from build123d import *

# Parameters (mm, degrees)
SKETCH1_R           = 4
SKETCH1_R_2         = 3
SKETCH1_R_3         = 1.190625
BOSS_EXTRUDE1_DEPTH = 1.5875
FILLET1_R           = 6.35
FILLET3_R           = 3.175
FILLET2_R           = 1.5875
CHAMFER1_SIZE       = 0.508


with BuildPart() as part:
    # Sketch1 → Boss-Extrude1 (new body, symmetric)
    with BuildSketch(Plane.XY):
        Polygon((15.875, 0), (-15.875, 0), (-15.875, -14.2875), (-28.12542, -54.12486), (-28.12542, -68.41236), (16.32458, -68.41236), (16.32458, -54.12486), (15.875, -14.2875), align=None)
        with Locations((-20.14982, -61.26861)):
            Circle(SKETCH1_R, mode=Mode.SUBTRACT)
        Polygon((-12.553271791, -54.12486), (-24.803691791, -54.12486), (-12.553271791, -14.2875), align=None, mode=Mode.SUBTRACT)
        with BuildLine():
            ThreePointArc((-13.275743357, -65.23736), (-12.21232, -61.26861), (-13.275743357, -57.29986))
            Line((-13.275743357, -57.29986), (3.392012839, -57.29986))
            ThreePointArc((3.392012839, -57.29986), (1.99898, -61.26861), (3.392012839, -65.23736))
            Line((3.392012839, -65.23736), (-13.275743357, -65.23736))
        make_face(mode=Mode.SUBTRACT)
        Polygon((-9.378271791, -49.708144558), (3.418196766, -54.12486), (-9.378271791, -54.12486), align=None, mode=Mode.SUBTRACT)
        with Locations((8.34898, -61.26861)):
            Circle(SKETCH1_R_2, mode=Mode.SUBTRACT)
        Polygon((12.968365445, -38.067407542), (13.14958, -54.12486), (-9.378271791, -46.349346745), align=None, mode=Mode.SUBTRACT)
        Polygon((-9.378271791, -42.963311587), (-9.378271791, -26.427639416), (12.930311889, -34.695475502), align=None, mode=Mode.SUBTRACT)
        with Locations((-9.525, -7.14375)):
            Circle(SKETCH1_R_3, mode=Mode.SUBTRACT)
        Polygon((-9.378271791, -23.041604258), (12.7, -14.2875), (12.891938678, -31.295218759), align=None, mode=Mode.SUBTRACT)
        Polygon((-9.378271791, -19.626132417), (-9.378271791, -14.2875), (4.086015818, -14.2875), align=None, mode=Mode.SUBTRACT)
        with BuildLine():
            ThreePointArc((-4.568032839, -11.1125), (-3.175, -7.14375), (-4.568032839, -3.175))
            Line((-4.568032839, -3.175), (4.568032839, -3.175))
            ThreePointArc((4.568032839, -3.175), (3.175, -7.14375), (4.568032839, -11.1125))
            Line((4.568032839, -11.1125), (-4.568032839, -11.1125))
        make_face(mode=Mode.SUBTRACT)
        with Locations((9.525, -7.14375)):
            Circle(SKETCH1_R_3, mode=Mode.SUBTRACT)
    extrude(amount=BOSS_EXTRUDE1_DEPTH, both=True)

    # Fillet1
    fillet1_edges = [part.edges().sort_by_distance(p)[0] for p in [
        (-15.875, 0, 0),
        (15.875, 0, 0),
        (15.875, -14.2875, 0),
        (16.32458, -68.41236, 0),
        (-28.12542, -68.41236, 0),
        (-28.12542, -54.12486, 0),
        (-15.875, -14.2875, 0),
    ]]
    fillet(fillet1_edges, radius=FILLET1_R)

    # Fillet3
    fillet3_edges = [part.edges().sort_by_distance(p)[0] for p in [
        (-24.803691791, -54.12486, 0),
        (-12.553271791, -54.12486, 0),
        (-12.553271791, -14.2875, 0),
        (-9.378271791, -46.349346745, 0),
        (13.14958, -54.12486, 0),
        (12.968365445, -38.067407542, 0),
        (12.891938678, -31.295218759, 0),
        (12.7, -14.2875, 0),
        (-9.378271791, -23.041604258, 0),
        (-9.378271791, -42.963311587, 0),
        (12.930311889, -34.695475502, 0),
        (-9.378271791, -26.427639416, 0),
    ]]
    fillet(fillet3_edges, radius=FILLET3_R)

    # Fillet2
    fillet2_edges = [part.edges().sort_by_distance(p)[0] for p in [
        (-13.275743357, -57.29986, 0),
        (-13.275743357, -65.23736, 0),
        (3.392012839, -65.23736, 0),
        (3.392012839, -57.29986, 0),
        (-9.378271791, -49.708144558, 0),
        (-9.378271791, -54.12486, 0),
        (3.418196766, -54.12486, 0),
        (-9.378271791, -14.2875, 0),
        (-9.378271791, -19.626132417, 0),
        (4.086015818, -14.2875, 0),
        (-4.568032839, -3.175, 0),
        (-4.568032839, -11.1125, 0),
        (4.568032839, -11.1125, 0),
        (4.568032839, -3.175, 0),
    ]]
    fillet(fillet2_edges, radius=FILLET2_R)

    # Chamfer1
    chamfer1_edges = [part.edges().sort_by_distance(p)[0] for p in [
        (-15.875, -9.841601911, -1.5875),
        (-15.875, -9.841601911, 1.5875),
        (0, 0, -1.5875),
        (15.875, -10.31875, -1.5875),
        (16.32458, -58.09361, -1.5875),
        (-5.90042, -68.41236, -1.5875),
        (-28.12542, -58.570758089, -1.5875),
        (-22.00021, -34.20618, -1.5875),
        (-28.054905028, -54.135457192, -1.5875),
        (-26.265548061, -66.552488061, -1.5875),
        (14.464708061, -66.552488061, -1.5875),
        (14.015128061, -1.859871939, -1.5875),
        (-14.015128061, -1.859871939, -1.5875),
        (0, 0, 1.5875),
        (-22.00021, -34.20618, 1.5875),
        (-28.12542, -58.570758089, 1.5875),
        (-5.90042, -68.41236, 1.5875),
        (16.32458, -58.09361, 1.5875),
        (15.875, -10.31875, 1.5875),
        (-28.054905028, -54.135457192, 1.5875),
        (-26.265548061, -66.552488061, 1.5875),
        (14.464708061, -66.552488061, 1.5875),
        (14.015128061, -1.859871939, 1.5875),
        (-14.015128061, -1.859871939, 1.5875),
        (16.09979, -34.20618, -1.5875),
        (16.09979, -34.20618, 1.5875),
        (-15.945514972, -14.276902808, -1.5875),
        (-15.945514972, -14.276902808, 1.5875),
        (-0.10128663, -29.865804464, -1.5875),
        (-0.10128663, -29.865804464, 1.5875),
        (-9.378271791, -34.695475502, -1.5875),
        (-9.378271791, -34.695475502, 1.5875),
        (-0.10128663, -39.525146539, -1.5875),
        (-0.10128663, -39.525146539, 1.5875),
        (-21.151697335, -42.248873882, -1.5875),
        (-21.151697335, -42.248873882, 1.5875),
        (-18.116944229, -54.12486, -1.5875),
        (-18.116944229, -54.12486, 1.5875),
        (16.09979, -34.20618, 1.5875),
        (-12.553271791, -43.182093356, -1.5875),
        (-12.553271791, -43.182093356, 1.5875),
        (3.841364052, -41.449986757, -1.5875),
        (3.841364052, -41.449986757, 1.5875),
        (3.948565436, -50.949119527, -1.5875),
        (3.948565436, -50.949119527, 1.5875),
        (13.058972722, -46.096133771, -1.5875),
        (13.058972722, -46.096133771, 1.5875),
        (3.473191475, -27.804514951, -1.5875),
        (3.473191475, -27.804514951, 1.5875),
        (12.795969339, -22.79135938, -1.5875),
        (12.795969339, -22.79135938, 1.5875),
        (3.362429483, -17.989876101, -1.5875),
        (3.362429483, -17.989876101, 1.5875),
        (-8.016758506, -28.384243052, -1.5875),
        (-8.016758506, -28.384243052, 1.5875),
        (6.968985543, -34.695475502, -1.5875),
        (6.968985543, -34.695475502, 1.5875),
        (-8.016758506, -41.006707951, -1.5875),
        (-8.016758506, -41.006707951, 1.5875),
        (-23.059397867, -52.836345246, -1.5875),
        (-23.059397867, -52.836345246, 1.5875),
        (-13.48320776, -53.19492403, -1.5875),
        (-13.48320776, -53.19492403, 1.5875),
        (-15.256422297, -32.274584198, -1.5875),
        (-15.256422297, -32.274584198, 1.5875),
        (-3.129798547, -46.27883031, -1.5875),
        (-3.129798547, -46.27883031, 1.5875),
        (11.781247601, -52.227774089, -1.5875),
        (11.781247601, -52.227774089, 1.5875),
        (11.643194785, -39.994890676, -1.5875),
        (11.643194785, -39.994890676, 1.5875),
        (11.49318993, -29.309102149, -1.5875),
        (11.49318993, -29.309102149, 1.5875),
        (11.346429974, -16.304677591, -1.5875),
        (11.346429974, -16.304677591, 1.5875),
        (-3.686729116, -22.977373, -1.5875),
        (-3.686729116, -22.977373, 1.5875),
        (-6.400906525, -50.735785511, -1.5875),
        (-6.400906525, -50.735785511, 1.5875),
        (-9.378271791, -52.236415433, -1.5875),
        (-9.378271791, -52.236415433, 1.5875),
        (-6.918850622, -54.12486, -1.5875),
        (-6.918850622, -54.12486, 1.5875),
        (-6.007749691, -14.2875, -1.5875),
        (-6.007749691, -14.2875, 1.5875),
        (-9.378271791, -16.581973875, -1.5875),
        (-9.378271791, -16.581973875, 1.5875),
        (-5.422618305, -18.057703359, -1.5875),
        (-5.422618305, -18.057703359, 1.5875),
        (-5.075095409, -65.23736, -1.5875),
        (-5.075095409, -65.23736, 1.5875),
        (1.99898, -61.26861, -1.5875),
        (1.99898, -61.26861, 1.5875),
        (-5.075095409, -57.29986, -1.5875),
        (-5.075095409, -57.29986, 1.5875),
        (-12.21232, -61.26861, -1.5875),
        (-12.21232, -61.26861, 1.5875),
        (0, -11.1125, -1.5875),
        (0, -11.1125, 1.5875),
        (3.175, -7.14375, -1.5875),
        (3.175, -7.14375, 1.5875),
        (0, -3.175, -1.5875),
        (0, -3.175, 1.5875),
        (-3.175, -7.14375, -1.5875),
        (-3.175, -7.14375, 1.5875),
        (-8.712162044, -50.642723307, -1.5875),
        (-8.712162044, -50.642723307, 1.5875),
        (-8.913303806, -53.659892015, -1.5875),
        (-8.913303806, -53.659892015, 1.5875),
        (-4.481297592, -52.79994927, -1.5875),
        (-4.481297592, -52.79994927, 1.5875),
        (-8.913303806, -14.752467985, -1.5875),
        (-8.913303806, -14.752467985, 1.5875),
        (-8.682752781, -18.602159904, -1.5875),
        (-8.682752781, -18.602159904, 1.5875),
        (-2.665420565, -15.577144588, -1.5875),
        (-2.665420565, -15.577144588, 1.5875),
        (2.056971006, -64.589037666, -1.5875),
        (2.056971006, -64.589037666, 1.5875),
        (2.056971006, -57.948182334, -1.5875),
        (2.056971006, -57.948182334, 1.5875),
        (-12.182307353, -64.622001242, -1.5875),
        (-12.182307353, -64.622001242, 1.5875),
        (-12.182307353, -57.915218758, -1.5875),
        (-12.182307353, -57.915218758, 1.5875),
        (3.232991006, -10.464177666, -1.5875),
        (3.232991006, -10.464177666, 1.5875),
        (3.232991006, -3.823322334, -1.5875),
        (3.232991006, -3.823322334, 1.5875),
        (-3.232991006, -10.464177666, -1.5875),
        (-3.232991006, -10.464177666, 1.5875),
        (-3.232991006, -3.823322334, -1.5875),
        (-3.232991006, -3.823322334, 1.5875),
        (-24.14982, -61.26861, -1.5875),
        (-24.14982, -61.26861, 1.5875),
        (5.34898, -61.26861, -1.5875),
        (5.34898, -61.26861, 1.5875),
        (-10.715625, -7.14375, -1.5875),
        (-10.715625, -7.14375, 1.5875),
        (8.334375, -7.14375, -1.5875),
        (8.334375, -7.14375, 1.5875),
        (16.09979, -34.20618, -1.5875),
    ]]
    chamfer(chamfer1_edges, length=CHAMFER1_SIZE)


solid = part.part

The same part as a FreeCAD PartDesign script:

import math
import FreeCAD as App
import Part
import Sketcher
Q = App.Units.Quantity


def edges_at(feature, points):
    """Names of the edges that pass closest to the given points."""
    edges = feature.Shape.Edges
    near = lambda p: min(range(len(edges)), key=lambda i: edges[i].distToShape(Part.Vertex(*p))[0])
    return sorted({f"Edge{near(p) + 1}" for p in points})

doc = App.newDocument("Part")
body = doc.addObject("PartDesign::Body", "Body")

# Sketch on XY plane
sketch1 = body.newObject("Sketcher::SketchObject", "Sketch")
sketch1.AttachmentSupport = (doc.getObject("XY_Plane"), [""])
sketch1.MapMode = "FlatFace"
sketch1.addGeometry([
    Part.LineSegment(App.Vector(15.9, 0, 0), App.Vector(-15.9, 0, 0)),  # 0
    Part.LineSegment(App.Vector(-15.9, 0, 0), App.Vector(-15.9, -14.3, 0)),  # 1
    Part.LineSegment(App.Vector(-15.9, -14.3, 0), App.Vector(-28.1, -54.1, 0)),  # 2
    Part.LineSegment(App.Vector(-28.1, -54.1, 0), App.Vector(-28.1, -68.4, 0)),  # 3
    Part.LineSegment(App.Vector(-28.1, -68.4, 0), App.Vector(16.3, -68.4, 0)),  # 4
    Part.LineSegment(App.Vector(16.3, -68.4, 0), App.Vector(16.3, -54.1, 0)),  # 5
    Part.LineSegment(App.Vector(16.3, -54.1, 0), App.Vector(15.9, -14.3, 0)),  # 6
    Part.LineSegment(App.Vector(15.9, -14.3, 0), App.Vector(15.9, 0, 0)),  # 7
    Part.Circle(App.Vector(-20.1, -61.3, 0), App.Vector(0, 0, 1), 4),  # 8
    Part.LineSegment(App.Vector(3.4, -65.2, 0), App.Vector(-13.3, -65.2, 0)),  # 9
    Part.ArcOfCircle(Part.Circle(App.Vector(-20.1, -61.3, 0), App.Vector(0, 0, 1), 7.9), math.radians(-30), math.radians(30)),  # 10
    Part.LineSegment(App.Vector(-13.3, -57.3, 0), App.Vector(3.4, -57.3, 0)),  # 11
    Part.ArcOfCircle(Part.Circle(App.Vector(8.3, -61.3, 0), App.Vector(0, 0, 1), 6.3), math.radians(141), math.radians(219)),  # 12
    Part.LineSegment(App.Vector(-9.4, -54.1, 0), App.Vector(-9.4, -49.7, 0)),  # 13
    Part.LineSegment(App.Vector(-9.4, -49.7, 0), App.Vector(3.4, -54.1, 0)),  # 14
    Part.LineSegment(App.Vector(3.4, -54.1, 0), App.Vector(-9.4, -54.1, 0)),  # 15
    Part.Circle(App.Vector(8.3, -61.3, 0), App.Vector(0, 0, 1), 3),  # 16
    Part.LineSegment(App.Vector(-9.4, -46.3, 0), App.Vector(13, -38.1, 0)),  # 17
    Part.LineSegment(App.Vector(13, -38.1, 0), App.Vector(13.1, -54.1, 0)),  # 18
    Part.LineSegment(App.Vector(13.1, -54.1, 0), App.Vector(-9.4, -46.3, 0)),  # 19
    Part.LineSegment(App.Vector(12.9, -34.7, 0), App.Vector(-9.4, -43, 0)),  # 20
    Part.LineSegment(App.Vector(-9.4, -43, 0), App.Vector(-9.4, -26.4, 0)),  # 21
    Part.LineSegment(App.Vector(-9.4, -26.4, 0), App.Vector(12.9, -34.7, 0)),  # 22
    Part.LineSegment(App.Vector(-12.6, -14.3, 0), App.Vector(-12.6, -54.1, 0)),  # 23
    Part.LineSegment(App.Vector(-12.6, -54.1, 0), App.Vector(-24.8, -54.1, 0)),  # 24
    Part.LineSegment(App.Vector(-24.8, -54.1, 0), App.Vector(-12.6, -14.3, 0)),  # 25
    Part.Circle(App.Vector(-9.5, -7.1, 0), App.Vector(0, 0, 1), 1.2),  # 26
    Part.LineSegment(App.Vector(12.9, -31.3, 0), App.Vector(-9.4, -23, 0)),  # 27
    Part.LineSegment(App.Vector(-9.4, -23, 0), App.Vector(12.7, -14.3, 0)),  # 28
    Part.LineSegment(App.Vector(12.7, -14.3, 0), App.Vector(12.9, -31.3, 0)),  # 29
    Part.LineSegment(App.Vector(4.1, -14.3, 0), App.Vector(-9.4, -19.6, 0)),  # 30
    Part.LineSegment(App.Vector(-9.4, -19.6, 0), App.Vector(-9.4, -14.3, 0)),  # 31
    Part.LineSegment(App.Vector(-9.4, -14.3, 0), App.Vector(4.1, -14.3, 0)),  # 32
    Part.LineSegment(App.Vector(4.6, -11.1, 0), App.Vector(-4.6, -11.1, 0)),  # 33
    Part.ArcOfCircle(Part.Circle(App.Vector(-9.5, -7.1, 0), App.Vector(0, 0, 1), 6.3), math.radians(-39), math.radians(39)),  # 34
    Part.LineSegment(App.Vector(-4.6, -3.2, 0), App.Vector(4.6, -3.2, 0)),  # 35
    Part.ArcOfCircle(Part.Circle(App.Vector(9.5, -7.1, 0), App.Vector(0, 0, 1), 6.3), math.radians(141), math.radians(219)),  # 36
    Part.Circle(App.Vector(9.5, -7.1, 0), App.Vector(0, 0, 1), 1.2),  # 37
], False)
sketch1.addConstraint([
    Sketcher.Constraint("Coincident", 0, 2, 1, 1),
    Sketcher.Constraint("Coincident", 1, 2, 2, 1),
    Sketcher.Constraint("Coincident", 2, 2, 3, 1),
    Sketcher.Constraint("Coincident", 3, 2, 4, 1),
    Sketcher.Constraint("Coincident", 4, 2, 5, 1),
    Sketcher.Constraint("Coincident", 5, 2, 6, 1),
    Sketcher.Constraint("Coincident", 6, 2, 7, 1),
    Sketcher.Constraint("Coincident", 7, 2, 0, 1),
    Sketcher.Constraint("Coincident", 9, 2, 10, 1),
    Sketcher.Constraint("Coincident", 10, 2, 11, 1),
    Sketcher.Constraint("Coincident", 11, 2, 12, 1),
    Sketcher.Constraint("Coincident", 12, 2, 9, 1),
    Sketcher.Constraint("Coincident", 13, 2, 14, 1),
    Sketcher.Constraint("Coincident", 14, 2, 15, 1),
    Sketcher.Constraint("Coincident", 15, 2, 13, 1),
    Sketcher.Constraint("Coincident", 17, 2, 18, 1),
    Sketcher.Constraint("Coincident", 18, 2, 19, 1),
    Sketcher.Constraint("Coincident", 19, 2, 17, 1),
    Sketcher.Constraint("Coincident", 20, 2, 21, 1),
    Sketcher.Constraint("Coincident", 21, 2, 22, 1),
    Sketcher.Constraint("Coincident", 22, 2, 20, 1),
    Sketcher.Constraint("Coincident", 23, 2, 24, 1),
    Sketcher.Constraint("Coincident", 24, 2, 25, 1),
    Sketcher.Constraint("Coincident", 25, 2, 23, 1),
    Sketcher.Constraint("Coincident", 27, 2, 28, 1),
    Sketcher.Constraint("Coincident", 28, 2, 29, 1),
    Sketcher.Constraint("Coincident", 29, 2, 27, 1),
    Sketcher.Constraint("Coincident", 30, 2, 31, 1),
    Sketcher.Constraint("Coincident", 31, 2, 32, 1),
    Sketcher.Constraint("Coincident", 32, 2, 30, 1),
    Sketcher.Constraint("Coincident", 33, 2, 34, 1),
    Sketcher.Constraint("Coincident", 34, 2, 35, 1),
    Sketcher.Constraint("Coincident", 35, 2, 36, 1),
    Sketcher.Constraint("Coincident", 36, 2, 33, 1),
    Sketcher.Constraint("Horizontal", 0),
    Sketcher.Constraint("Vertical", 1),
    Sketcher.Constraint("Vertical", 3),
    Sketcher.Constraint("Horizontal", 4),
    Sketcher.Constraint("Vertical", 5),
    Sketcher.Constraint("Vertical", 7),
    Sketcher.Constraint("Horizontal", 9),
    Sketcher.Constraint("Horizontal", 11),
    Sketcher.Constraint("Vertical", 13),
    Sketcher.Constraint("Horizontal", 15),
    Sketcher.Constraint("Vertical", 21),
    Sketcher.Constraint("Vertical", 23),
    Sketcher.Constraint("Horizontal", 24),
    Sketcher.Constraint("Vertical", 31),
    Sketcher.Constraint("Horizontal", 32),
    Sketcher.Constraint("Horizontal", 33),
    Sketcher.Constraint("Horizontal", 35),
    Sketcher.Constraint("Coincident", 10, 3, 8, 3),
    Sketcher.Constraint("Coincident", 16, 3, 12, 3),
    Sketcher.Constraint("Coincident", 34, 3, 26, 3),
    Sketcher.Constraint("Coincident", 37, 3, 36, 3),
    Sketcher.Constraint("Equal", 12, 34),
    Sketcher.Constraint("Equal", 34, 36),
    Sketcher.Constraint("Equal", 26, 37),
    Sketcher.Constraint("Symmetric", 0, 2, 7, 2, -1, 1),
    Sketcher.Constraint("Symmetric", 26, 3, 36, 3, -2),
    Sketcher.Constraint("Parallel", 6, 18),
    Sketcher.Constraint("Parallel", 14, 19),
    Sketcher.Constraint("Parallel", 17, 20),
    Sketcher.Constraint("Parallel", 2, 25),
    Sketcher.Constraint("Parallel", 22, 27),
    Sketcher.Constraint("Parallel", 18, 29),
    Sketcher.Constraint("Parallel", 28, 30),
    Sketcher.Constraint("Horizontal", 10, 3, 12, 3),
    Sketcher.Constraint("Horizontal", 2, 2, 5, 2),
    Sketcher.Constraint("Horizontal", 1, 2, 6, 2),
    Sketcher.Constraint("Horizontal", 5, 2, 14, 2),
    Sketcher.Constraint("Horizontal", 15, 2, 18, 2),
    Sketcher.Constraint("Horizontal", 18, 2, 23, 2),
    Sketcher.Constraint("Horizontal", 6, 2, 25, 2),
    Sketcher.Constraint("Horizontal", 25, 2, 28, 2),
    Sketcher.Constraint("Horizontal", 28, 2, 31, 2),
    Sketcher.Constraint("Vertical", 9, 2, 10, 2),
    Sketcher.Constraint("Vertical", 15, 2, 19, 2),
    Sketcher.Constraint("Vertical", 19, 2, 20, 2),
    Sketcher.Constraint("Vertical", 21, 2, 27, 2),
    Sketcher.Constraint("Vertical", 27, 2, 30, 2),
    Sketcher.Constraint("Vertical", 33, 2, 34, 2),
    Sketcher.Constraint("Equal", 1, 3),
    Sketcher.Constraint("Equal", 17, 19),
    Sketcher.Constraint("Equal", 20, 22),
    Sketcher.Constraint("Equal", 27, 28),
    Sketcher.Constraint("Radius", 12, Q("0.25 in")),
    Sketcher.Constraint("Diameter", 26, Q("0.09375 in")),
    Sketcher.Constraint("Radius", 10, Q("0.3125 in")),
    Sketcher.Constraint("DistanceX", 0, 2, 36, 3, Q("1 in")),
    Sketcher.Constraint("DistanceX", 0, 2, 0, 1, Q("1.25 in")),
    Sketcher.Constraint("DistanceX", 4, 1, 4, 2, Q("1.75 in")),
    Sketcher.Constraint("DistanceX", -1, 1, 28, 2, Q("0.5 in")),
    Sketcher.Constraint("Diameter", 8, Q("8 mm")),
    Sketcher.Constraint("Diameter", 16, Q("6 mm")),
    Sketcher.Constraint("DistanceY", 1, 2, 1, 1, Q("0.5625 in")),
    Sketcher.Constraint("DistanceX", 24, 2, 24, 1, Q("0.4823 in")),
    Sketcher.Constraint("DistanceY", 23, 2, 23, 1, Q("1.5684 in")),
    Sketcher.Constraint("DistanceY", 26, 3, -1, 1, Q("0.28125 in")),
    Sketcher.Constraint("DistanceY", 33, 2, -1, 1, Q("0.4375 in")),
    Sketcher.Constraint("DistanceX", 8, 3, 12, 3, Q("1.122 in")),
    Sketcher.Constraint("DistanceX", 2, 2, 10, 3, Q("0.314 in")),
    Sketcher.Constraint("DistanceY", 10, 3, 2, 2, Q("0.28125 in")),
    Sketcher.Constraint("DistanceY", 9, 2, 8, 3, Q("0.15625 in")),
    Sketcher.Constraint("DistanceX", 18, 2, 5, 2, Q("0.125 in")),
    Sketcher.Constraint("DistanceX", 23, 2, 15, 2, Q("0.125 in")),
    Sketcher.Constraint("Distance", 29, Q("17.008802 mm")),
    Sketcher.Constraint("DistanceX", 15, 2, 15, 1, Q("12.796469 mm")),
    Sketcher.Constraint("Distance", 17, Q("23.831968 mm")),
    Sketcher.Constraint("Distance", 30, Q("14.484061 mm")),
    Sketcher.Constraint("DistanceY", 21, 1, 21, 2, Q("16.535672 mm")),
    Sketcher.Constraint("DistanceY", 20, 2, -1, 1, Q("42.963312 mm")),
])
pad1 = body.newObject("PartDesign::Pad", "Pad")
pad1.Profile = sketch1
pad1.Length = Q("0.125 in")
pad1.Midplane = True
doc.recompute()

fillet = body.newObject("PartDesign::Fillet", "Fillet")
fillet.Base = (pad1, edges_at(pad1, [
    (-15.875, 0, 0),
    (15.875, 0, 0),
    (15.875, -14.287, 0),
    (16.325, -68.412, 0),
    (-28.125, -68.412, 0),
    (-28.125, -54.125, 0),
    (-15.875, -14.287, 0),
]))
fillet.Radius = Q("0.25 in")
doc.recompute()

fillet2 = body.newObject("PartDesign::Fillet", "Fillet001")
fillet2.Base = (fillet, edges_at(fillet, [
    (-24.804, -54.125, 0),
    (-12.553, -54.125, 0),
    (-12.553, -14.287, 0),
    (-9.378, -46.349, 0),
    (13.15, -54.125, 0),
    (12.968, -38.067, 0),
    (12.892, -31.295, 0),
    (12.7, -14.287, 0),
    (-9.378, -23.042, 0),
    (-9.378, -42.963, 0),
    (12.93, -34.695, 0),
    (-9.378, -26.428, 0),
]))
fillet2.Radius = Q("0.125 in")
doc.recompute()

fillet3 = body.newObject("PartDesign::Fillet", "Fillet002")
fillet3.Base = (fillet2, edges_at(fillet2, [
    (-13.276, -57.3, 0),
    (-13.276, -65.237, 0),
    (3.392, -65.237, 0),
    (3.392, -57.3, 0),
    (-9.378, -49.708, 0),
    (-9.378, -54.125, 0),
    (3.418, -54.125, 0),
    (-9.378, -14.287, 0),
    (-9.378, -19.626, 0),
    (4.086, -14.287, 0),
    (-4.568, -3.175, 0),
    (-4.568, -11.113, 0),
    (4.568, -11.113, 0),
    (4.568, -3.175, 0),
]))
fillet3.Radius = Q("0.0625 in")
doc.recompute()

chamfer = body.newObject("PartDesign::Chamfer", "Chamfer")
chamfer.Base = (fillet3, edges_at(fillet3, [
    (-15.875, -9.842, -1.587),
    (-15.875, -9.842, 1.587),
    (0, 0, -1.587),
    (15.875, -10.319, -1.587),
    (16.325, -58.094, -1.587),
    (-5.9, -68.412, -1.587),
    (-28.125, -58.571, -1.587),
    (-22, -34.206, -1.587),
    (-28.055, -54.135, -1.587),
    (-26.266, -66.552, -1.587),
    (14.465, -66.552, -1.587),
    (14.015, -1.86, -1.587),
    (-14.015, -1.86, -1.587),
    (0, 0, 1.587),
    (-22, -34.206, 1.587),
    (-28.125, -58.571, 1.587),
    (-5.9, -68.412, 1.587),
    (16.325, -58.094, 1.587),
    (15.875, -10.319, 1.587),
    (-28.055, -54.135, 1.587),
    (-26.266, -66.552, 1.587),
    (14.465, -66.552, 1.587),
    (14.015, -1.86, 1.587),
    (-14.015, -1.86, 1.587),
    (16.1, -34.206, -1.587),
    (16.1, -34.206, 1.587),
    (-15.946, -14.277, -1.587),
    (-15.946, -14.277, 1.587),
    (-0.101, -29.866, -1.587),
    (-0.101, -29.866, 1.587),
    (-9.378, -34.695, -1.587),
    (-9.378, -34.695, 1.587),
    (-0.101, -39.525, -1.587),
    (-0.101, -39.525, 1.587),
    (-21.152, -42.249, -1.587),
    (-21.152, -42.249, 1.587),
    (-18.117, -54.125, -1.587),
    (-18.117, -54.125, 1.587),
    (16.1, -34.206, 1.587),
    (-12.553, -43.182, -1.587),
    (-12.553, -43.182, 1.587),
    (3.841, -41.45, -1.587),
    (3.841, -41.45, 1.587),
    (3.949, -50.949, -1.587),
    (3.949, -50.949, 1.587),
    (13.059, -46.096, -1.587),
    (13.059, -46.096, 1.587),
    (3.473, -27.805, -1.587),
    (3.473, -27.805, 1.587),
    (12.796, -22.791, -1.587),
    (12.796, -22.791, 1.587),
    (3.362, -17.99, -1.587),
    (3.362, -17.99, 1.587),
    (-8.017, -28.384, -1.587),
    (-8.017, -28.384, 1.587),
    (6.969, -34.695, -1.587),
    (6.969, -34.695, 1.587),
    (-8.017, -41.007, -1.587),
    (-8.017, -41.007, 1.587),
    (-23.059, -52.836, -1.587),
    (-23.059, -52.836, 1.587),
    (-13.483, -53.195, -1.587),
    (-13.483, -53.195, 1.587),
    (-15.256, -32.275, -1.587),
    (-15.256, -32.275, 1.587),
    (-3.13, -46.279, -1.587),
    (-3.13, -46.279, 1.587),
    (11.781, -52.228, -1.587),
    (11.781, -52.228, 1.587),
    (11.643, -39.995, -1.587),
    (11.643, -39.995, 1.587),
    (11.493, -29.309, -1.587),
    (11.493, -29.309, 1.587),
    (11.346, -16.305, -1.587),
    (11.346, -16.305, 1.587),
    (-3.687, -22.977, -1.587),
    (-3.687, -22.977, 1.587),
    (-6.401, -50.736, -1.587),
    (-6.401, -50.736, 1.587),
    (-9.378, -52.236, -1.587),
    (-9.378, -52.236, 1.587),
    (-6.919, -54.125, -1.587),
    (-6.919, -54.125, 1.587),
    (-6.008, -14.287, -1.587),
    (-6.008, -14.287, 1.587),
    (-9.378, -16.582, -1.587),
    (-9.378, -16.582, 1.587),
    (-5.423, -18.058, -1.587),
    (-5.423, -18.058, 1.587),
    (-5.075, -65.237, -1.587),
    (-5.075, -65.237, 1.587),
    (1.999, -61.269, -1.587),
    (1.999, -61.269, 1.587),
    (-5.075, -57.3, -1.587),
    (-5.075, -57.3, 1.587),
    (-12.212, -61.269, -1.587),
    (-12.212, -61.269, 1.587),
    (0, -11.113, -1.587),
    (0, -11.113, 1.587),
    (3.175, -7.144, -1.587),
    (3.175, -7.144, 1.587),
    (0, -3.175, -1.587),
    (0, -3.175, 1.587),
    (-3.175, -7.144, -1.587),
    (-3.175, -7.144, 1.587),
    (-8.712, -50.643, -1.587),
    (-8.712, -50.643, 1.587),
    (-8.913, -53.66, -1.587),
    (-8.913, -53.66, 1.587),
    (-4.481, -52.8, -1.587),
    (-4.481, -52.8, 1.587),
    (-8.913, -14.752, -1.587),
    (-8.913, -14.752, 1.587),
    (-8.683, -18.602, -1.587),
    (-8.683, -18.602, 1.587),
    (-2.665, -15.577, -1.587),
    (-2.665, -15.577, 1.587),
    (2.057, -64.589, -1.587),
    (2.057, -64.589, 1.587),
    (2.057, -57.948, -1.587),
    (2.057, -57.948, 1.587),
    (-12.182, -64.622, -1.587),
    (-12.182, -64.622, 1.587),
    (-12.182, -57.915, -1.587),
    (-12.182, -57.915, 1.587),
    (3.233, -10.464, -1.587),
    (3.233, -10.464, 1.587),
    (3.233, -3.823, -1.587),
    (3.233, -3.823, 1.587),
    (-3.233, -10.464, -1.587),
    (-3.233, -10.464, 1.587),
    (-3.233, -3.823, -1.587),
    (-3.233, -3.823, 1.587),
    (-24.15, -61.269, -1.587),
    (-24.15, -61.269, 1.587),
    (5.349, -61.269, -1.587),
    (5.349, -61.269, 1.587),
    (-10.716, -7.144, -1.587),
    (-10.716, -7.144, 1.587),
    (8.334, -7.144, -1.587),
    (8.334, -7.144, 1.587),
    (16.1, -34.206, -1.587),
]))
chamfer.Size = Q("0.02 in")

doc.recompute()
